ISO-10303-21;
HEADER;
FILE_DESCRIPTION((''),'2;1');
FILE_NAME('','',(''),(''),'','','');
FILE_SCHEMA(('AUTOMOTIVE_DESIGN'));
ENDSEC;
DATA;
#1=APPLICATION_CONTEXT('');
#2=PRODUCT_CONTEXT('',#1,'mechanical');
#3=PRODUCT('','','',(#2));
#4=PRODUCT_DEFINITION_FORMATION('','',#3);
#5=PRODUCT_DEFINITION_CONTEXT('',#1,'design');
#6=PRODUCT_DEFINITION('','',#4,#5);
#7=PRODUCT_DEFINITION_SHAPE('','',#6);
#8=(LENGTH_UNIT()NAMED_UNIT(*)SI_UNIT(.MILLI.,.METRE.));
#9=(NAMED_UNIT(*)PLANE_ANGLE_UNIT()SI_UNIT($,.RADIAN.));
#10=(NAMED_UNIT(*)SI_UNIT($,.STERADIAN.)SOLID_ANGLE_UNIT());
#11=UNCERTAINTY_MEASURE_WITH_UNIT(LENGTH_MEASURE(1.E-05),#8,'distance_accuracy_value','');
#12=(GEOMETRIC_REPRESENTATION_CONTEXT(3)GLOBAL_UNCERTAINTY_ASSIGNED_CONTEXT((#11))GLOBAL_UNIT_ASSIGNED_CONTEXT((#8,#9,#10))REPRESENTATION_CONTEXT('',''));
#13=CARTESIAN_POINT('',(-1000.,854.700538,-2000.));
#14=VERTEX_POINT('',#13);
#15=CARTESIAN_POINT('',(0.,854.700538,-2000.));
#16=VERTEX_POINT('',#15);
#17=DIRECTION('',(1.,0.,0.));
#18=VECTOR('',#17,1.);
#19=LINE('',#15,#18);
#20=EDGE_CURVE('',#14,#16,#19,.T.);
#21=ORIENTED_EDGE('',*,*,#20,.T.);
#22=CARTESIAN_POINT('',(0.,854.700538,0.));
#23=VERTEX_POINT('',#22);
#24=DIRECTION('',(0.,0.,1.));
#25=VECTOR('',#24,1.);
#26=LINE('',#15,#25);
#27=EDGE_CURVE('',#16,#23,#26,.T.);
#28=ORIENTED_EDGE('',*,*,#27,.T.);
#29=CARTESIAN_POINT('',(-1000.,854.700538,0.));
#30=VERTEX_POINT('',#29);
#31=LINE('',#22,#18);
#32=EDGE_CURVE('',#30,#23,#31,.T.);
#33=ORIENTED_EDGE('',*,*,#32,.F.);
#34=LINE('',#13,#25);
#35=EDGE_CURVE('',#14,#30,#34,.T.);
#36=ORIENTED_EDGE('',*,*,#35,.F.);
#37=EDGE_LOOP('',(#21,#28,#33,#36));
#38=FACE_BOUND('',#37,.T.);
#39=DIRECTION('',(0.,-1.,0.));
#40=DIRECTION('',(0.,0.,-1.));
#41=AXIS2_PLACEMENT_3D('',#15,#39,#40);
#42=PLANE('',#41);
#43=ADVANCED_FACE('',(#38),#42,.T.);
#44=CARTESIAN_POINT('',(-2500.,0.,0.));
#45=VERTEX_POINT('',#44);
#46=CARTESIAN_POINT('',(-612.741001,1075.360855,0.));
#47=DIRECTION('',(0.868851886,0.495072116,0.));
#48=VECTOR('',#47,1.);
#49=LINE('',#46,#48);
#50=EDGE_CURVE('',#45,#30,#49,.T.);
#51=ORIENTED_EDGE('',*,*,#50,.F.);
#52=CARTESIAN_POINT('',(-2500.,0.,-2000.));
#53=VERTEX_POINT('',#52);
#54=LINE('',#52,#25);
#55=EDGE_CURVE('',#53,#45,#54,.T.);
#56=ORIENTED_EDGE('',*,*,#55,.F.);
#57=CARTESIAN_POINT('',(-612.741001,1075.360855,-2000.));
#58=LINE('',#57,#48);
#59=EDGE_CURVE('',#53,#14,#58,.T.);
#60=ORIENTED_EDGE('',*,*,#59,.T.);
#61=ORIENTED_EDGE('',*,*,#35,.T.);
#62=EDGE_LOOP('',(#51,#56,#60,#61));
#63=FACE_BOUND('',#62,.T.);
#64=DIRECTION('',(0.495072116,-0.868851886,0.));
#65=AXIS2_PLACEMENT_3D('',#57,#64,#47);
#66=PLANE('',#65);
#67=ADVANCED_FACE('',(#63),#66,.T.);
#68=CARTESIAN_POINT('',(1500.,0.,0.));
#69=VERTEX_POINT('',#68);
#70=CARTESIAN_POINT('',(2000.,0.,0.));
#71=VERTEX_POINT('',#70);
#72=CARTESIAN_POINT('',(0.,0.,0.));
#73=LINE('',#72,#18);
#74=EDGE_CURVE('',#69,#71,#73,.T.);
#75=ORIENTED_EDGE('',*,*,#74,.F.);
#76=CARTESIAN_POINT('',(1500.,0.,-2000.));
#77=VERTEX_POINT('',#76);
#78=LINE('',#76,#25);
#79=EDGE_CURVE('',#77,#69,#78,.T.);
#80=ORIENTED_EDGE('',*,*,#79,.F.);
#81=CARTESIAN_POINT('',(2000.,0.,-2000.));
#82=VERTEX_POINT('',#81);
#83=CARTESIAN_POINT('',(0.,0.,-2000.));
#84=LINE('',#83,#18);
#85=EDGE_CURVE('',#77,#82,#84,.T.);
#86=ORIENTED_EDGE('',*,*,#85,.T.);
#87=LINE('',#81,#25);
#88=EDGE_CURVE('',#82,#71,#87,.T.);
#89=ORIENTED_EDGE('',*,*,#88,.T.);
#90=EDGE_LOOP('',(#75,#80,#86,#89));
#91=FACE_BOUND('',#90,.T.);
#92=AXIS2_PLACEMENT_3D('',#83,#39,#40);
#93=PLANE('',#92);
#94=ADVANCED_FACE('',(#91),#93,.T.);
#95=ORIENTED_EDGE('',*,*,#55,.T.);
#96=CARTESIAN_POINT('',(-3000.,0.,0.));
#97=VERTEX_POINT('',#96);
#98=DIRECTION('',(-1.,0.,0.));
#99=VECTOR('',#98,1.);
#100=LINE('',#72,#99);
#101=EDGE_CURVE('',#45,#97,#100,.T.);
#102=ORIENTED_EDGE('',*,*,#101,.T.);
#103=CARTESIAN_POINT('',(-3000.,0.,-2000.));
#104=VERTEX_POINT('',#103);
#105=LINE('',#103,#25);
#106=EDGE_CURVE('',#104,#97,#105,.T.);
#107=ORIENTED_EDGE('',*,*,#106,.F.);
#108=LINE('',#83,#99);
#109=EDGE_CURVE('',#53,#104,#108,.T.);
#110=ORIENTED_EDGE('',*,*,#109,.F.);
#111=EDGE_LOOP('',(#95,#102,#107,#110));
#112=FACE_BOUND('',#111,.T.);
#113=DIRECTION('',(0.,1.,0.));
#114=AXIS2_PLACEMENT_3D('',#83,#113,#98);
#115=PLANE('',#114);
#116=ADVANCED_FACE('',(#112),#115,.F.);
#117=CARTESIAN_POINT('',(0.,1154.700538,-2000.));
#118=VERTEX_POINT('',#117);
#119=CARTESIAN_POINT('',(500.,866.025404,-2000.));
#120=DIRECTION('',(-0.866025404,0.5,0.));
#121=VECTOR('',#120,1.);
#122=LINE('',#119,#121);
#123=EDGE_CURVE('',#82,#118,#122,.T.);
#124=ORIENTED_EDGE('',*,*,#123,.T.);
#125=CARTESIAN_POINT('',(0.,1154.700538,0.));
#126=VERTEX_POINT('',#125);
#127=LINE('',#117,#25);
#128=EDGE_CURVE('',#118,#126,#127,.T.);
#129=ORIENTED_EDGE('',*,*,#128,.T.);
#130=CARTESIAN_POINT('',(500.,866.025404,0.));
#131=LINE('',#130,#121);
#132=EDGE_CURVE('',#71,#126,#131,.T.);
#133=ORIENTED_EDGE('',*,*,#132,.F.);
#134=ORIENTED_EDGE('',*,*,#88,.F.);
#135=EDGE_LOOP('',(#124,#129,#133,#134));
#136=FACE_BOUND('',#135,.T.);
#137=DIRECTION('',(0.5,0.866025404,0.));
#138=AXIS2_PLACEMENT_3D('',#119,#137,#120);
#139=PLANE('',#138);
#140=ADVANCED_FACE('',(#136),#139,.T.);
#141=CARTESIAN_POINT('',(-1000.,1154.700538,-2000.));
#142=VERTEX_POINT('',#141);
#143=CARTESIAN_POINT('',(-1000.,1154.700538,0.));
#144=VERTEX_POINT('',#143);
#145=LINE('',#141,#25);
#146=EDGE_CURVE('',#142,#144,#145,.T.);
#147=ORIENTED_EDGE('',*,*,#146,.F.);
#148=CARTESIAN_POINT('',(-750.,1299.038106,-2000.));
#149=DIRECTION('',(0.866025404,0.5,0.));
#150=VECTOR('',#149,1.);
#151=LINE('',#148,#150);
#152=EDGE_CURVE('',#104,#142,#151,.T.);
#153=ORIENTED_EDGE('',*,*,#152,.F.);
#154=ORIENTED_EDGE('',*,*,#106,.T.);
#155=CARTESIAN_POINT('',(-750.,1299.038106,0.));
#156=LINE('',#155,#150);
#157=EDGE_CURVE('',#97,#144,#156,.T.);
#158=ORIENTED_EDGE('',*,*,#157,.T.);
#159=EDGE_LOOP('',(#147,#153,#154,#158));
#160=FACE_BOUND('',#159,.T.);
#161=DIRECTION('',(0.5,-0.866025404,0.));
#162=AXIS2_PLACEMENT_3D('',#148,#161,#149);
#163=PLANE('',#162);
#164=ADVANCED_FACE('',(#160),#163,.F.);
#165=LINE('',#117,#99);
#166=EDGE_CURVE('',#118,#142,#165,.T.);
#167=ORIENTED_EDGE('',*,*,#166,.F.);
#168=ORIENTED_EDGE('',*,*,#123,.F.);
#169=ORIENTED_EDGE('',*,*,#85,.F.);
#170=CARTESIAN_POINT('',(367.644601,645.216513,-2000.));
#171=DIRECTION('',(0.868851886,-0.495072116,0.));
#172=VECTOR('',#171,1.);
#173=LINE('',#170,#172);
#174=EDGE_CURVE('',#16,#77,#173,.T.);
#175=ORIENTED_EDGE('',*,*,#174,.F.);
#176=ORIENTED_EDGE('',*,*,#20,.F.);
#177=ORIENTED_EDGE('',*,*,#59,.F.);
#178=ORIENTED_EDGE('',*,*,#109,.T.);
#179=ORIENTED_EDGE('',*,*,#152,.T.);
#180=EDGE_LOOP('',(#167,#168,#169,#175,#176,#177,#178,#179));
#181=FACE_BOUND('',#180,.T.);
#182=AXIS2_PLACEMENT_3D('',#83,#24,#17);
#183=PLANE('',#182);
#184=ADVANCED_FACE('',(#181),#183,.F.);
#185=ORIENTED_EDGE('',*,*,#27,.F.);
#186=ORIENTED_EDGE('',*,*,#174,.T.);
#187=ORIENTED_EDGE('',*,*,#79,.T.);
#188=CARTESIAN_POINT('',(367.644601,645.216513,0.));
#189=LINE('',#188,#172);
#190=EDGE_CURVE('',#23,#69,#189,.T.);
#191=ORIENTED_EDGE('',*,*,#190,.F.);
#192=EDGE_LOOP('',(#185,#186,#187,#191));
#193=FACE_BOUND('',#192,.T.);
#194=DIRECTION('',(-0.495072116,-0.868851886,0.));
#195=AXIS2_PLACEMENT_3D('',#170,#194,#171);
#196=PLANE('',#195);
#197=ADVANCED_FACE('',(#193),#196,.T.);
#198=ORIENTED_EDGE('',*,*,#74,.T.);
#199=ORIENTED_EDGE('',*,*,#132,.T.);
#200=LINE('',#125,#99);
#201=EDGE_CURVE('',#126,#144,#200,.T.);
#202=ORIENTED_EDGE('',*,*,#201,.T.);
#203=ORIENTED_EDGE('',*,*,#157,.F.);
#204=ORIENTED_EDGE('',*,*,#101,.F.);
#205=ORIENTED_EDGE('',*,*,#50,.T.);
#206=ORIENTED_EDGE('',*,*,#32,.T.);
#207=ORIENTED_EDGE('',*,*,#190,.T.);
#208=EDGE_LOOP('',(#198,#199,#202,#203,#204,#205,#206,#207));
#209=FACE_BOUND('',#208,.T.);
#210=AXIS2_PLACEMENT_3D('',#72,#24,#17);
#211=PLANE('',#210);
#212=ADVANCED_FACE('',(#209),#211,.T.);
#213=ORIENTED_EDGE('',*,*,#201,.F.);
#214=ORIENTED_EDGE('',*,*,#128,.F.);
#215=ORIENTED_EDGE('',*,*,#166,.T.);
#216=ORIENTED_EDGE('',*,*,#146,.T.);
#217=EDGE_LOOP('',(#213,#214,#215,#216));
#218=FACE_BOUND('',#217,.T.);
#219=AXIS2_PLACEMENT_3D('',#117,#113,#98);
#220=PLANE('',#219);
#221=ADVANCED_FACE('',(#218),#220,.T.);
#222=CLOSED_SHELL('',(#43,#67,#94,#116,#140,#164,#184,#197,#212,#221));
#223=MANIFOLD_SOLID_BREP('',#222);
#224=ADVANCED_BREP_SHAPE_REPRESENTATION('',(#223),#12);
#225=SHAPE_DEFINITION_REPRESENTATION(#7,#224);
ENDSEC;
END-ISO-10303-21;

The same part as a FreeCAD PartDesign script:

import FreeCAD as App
import Part
import Sketcher

V = App.Vector
Q = App.Units.Quantity


def add_polygon(sketch, points):
    """Adds a closed chain of lines whose ends are joined by coincident constraints."""
    first, n = sketch.GeometryCount, len(points)
    for a, b in zip(points, points[1:] + points[:1]):
        sketch.addGeometry(Part.LineSegment(App.Vector(*a, 0), App.Vector(*b, 0)), False)
    for i in range(n):
        sketch.addConstraint(Sketcher.Constraint("Coincident", first + i, 2, first + (i + 1) % n, 1))

doc = App.newDocument("Part")
body = doc.addObject("PartDesign::Body", "Body")

# Sketch on XY plane
sketch1 = body.newObject("Sketcher::SketchObject", "Sketch")
sketch1.AttachmentSupport = (doc.getObject("XY_Plane"), [""])
sketch1.MapMode = "FlatFace"
add_polygon(sketch1, [(0, 855), (1500, 0), (2000, 0), (0, 1155), (-1000, 1155), (-3000, 0), (-2500, 0), (-1000, 855)])  # lines 0-7
sketch1.addConstraint([
    Sketcher.Constraint("Horizontal", 1),
    Sketcher.Constraint("Horizontal", 3),
    Sketcher.Constraint("Horizontal", 5),
    Sketcher.Constraint("Horizontal", 7),
    Sketcher.Constraint("PointOnObject", 0, 2, -1),
    Sketcher.Constraint("PointOnObject", 2, 2, -2),
    Sketcher.Constraint("PointOnObject", 4, 2, -1),
    Sketcher.Constraint("PointOnObject", 7, 2, -2),
    Sketcher.Constraint("Vertical", 3, 2, 6, 2),
    Sketcher.Constraint("Equal", 1, 5),
    Sketcher.Constraint("Equal", 2, 4),
    Sketcher.Constraint("DistanceX", 1, 1, 1, 2, 500.0),
    Sketcher.Constraint("DistanceX", 3, 2, 3, 1, 1000.0),
    Sketcher.Constraint("Angle", 2, Q("150 deg")),
    Sketcher.Constraint("DistanceX", -1, 1, 0, 2, 1500.0),
    Sketcher.Constraint("DistanceY", 6, 2, 3, 2, 300.0),
])
pad1 = body.newObject("PartDesign::Pad", "Pad")
pad1.Profile = sketch1
pad1.Length = 2000
pad1.Reversed = True

doc.recompute()
